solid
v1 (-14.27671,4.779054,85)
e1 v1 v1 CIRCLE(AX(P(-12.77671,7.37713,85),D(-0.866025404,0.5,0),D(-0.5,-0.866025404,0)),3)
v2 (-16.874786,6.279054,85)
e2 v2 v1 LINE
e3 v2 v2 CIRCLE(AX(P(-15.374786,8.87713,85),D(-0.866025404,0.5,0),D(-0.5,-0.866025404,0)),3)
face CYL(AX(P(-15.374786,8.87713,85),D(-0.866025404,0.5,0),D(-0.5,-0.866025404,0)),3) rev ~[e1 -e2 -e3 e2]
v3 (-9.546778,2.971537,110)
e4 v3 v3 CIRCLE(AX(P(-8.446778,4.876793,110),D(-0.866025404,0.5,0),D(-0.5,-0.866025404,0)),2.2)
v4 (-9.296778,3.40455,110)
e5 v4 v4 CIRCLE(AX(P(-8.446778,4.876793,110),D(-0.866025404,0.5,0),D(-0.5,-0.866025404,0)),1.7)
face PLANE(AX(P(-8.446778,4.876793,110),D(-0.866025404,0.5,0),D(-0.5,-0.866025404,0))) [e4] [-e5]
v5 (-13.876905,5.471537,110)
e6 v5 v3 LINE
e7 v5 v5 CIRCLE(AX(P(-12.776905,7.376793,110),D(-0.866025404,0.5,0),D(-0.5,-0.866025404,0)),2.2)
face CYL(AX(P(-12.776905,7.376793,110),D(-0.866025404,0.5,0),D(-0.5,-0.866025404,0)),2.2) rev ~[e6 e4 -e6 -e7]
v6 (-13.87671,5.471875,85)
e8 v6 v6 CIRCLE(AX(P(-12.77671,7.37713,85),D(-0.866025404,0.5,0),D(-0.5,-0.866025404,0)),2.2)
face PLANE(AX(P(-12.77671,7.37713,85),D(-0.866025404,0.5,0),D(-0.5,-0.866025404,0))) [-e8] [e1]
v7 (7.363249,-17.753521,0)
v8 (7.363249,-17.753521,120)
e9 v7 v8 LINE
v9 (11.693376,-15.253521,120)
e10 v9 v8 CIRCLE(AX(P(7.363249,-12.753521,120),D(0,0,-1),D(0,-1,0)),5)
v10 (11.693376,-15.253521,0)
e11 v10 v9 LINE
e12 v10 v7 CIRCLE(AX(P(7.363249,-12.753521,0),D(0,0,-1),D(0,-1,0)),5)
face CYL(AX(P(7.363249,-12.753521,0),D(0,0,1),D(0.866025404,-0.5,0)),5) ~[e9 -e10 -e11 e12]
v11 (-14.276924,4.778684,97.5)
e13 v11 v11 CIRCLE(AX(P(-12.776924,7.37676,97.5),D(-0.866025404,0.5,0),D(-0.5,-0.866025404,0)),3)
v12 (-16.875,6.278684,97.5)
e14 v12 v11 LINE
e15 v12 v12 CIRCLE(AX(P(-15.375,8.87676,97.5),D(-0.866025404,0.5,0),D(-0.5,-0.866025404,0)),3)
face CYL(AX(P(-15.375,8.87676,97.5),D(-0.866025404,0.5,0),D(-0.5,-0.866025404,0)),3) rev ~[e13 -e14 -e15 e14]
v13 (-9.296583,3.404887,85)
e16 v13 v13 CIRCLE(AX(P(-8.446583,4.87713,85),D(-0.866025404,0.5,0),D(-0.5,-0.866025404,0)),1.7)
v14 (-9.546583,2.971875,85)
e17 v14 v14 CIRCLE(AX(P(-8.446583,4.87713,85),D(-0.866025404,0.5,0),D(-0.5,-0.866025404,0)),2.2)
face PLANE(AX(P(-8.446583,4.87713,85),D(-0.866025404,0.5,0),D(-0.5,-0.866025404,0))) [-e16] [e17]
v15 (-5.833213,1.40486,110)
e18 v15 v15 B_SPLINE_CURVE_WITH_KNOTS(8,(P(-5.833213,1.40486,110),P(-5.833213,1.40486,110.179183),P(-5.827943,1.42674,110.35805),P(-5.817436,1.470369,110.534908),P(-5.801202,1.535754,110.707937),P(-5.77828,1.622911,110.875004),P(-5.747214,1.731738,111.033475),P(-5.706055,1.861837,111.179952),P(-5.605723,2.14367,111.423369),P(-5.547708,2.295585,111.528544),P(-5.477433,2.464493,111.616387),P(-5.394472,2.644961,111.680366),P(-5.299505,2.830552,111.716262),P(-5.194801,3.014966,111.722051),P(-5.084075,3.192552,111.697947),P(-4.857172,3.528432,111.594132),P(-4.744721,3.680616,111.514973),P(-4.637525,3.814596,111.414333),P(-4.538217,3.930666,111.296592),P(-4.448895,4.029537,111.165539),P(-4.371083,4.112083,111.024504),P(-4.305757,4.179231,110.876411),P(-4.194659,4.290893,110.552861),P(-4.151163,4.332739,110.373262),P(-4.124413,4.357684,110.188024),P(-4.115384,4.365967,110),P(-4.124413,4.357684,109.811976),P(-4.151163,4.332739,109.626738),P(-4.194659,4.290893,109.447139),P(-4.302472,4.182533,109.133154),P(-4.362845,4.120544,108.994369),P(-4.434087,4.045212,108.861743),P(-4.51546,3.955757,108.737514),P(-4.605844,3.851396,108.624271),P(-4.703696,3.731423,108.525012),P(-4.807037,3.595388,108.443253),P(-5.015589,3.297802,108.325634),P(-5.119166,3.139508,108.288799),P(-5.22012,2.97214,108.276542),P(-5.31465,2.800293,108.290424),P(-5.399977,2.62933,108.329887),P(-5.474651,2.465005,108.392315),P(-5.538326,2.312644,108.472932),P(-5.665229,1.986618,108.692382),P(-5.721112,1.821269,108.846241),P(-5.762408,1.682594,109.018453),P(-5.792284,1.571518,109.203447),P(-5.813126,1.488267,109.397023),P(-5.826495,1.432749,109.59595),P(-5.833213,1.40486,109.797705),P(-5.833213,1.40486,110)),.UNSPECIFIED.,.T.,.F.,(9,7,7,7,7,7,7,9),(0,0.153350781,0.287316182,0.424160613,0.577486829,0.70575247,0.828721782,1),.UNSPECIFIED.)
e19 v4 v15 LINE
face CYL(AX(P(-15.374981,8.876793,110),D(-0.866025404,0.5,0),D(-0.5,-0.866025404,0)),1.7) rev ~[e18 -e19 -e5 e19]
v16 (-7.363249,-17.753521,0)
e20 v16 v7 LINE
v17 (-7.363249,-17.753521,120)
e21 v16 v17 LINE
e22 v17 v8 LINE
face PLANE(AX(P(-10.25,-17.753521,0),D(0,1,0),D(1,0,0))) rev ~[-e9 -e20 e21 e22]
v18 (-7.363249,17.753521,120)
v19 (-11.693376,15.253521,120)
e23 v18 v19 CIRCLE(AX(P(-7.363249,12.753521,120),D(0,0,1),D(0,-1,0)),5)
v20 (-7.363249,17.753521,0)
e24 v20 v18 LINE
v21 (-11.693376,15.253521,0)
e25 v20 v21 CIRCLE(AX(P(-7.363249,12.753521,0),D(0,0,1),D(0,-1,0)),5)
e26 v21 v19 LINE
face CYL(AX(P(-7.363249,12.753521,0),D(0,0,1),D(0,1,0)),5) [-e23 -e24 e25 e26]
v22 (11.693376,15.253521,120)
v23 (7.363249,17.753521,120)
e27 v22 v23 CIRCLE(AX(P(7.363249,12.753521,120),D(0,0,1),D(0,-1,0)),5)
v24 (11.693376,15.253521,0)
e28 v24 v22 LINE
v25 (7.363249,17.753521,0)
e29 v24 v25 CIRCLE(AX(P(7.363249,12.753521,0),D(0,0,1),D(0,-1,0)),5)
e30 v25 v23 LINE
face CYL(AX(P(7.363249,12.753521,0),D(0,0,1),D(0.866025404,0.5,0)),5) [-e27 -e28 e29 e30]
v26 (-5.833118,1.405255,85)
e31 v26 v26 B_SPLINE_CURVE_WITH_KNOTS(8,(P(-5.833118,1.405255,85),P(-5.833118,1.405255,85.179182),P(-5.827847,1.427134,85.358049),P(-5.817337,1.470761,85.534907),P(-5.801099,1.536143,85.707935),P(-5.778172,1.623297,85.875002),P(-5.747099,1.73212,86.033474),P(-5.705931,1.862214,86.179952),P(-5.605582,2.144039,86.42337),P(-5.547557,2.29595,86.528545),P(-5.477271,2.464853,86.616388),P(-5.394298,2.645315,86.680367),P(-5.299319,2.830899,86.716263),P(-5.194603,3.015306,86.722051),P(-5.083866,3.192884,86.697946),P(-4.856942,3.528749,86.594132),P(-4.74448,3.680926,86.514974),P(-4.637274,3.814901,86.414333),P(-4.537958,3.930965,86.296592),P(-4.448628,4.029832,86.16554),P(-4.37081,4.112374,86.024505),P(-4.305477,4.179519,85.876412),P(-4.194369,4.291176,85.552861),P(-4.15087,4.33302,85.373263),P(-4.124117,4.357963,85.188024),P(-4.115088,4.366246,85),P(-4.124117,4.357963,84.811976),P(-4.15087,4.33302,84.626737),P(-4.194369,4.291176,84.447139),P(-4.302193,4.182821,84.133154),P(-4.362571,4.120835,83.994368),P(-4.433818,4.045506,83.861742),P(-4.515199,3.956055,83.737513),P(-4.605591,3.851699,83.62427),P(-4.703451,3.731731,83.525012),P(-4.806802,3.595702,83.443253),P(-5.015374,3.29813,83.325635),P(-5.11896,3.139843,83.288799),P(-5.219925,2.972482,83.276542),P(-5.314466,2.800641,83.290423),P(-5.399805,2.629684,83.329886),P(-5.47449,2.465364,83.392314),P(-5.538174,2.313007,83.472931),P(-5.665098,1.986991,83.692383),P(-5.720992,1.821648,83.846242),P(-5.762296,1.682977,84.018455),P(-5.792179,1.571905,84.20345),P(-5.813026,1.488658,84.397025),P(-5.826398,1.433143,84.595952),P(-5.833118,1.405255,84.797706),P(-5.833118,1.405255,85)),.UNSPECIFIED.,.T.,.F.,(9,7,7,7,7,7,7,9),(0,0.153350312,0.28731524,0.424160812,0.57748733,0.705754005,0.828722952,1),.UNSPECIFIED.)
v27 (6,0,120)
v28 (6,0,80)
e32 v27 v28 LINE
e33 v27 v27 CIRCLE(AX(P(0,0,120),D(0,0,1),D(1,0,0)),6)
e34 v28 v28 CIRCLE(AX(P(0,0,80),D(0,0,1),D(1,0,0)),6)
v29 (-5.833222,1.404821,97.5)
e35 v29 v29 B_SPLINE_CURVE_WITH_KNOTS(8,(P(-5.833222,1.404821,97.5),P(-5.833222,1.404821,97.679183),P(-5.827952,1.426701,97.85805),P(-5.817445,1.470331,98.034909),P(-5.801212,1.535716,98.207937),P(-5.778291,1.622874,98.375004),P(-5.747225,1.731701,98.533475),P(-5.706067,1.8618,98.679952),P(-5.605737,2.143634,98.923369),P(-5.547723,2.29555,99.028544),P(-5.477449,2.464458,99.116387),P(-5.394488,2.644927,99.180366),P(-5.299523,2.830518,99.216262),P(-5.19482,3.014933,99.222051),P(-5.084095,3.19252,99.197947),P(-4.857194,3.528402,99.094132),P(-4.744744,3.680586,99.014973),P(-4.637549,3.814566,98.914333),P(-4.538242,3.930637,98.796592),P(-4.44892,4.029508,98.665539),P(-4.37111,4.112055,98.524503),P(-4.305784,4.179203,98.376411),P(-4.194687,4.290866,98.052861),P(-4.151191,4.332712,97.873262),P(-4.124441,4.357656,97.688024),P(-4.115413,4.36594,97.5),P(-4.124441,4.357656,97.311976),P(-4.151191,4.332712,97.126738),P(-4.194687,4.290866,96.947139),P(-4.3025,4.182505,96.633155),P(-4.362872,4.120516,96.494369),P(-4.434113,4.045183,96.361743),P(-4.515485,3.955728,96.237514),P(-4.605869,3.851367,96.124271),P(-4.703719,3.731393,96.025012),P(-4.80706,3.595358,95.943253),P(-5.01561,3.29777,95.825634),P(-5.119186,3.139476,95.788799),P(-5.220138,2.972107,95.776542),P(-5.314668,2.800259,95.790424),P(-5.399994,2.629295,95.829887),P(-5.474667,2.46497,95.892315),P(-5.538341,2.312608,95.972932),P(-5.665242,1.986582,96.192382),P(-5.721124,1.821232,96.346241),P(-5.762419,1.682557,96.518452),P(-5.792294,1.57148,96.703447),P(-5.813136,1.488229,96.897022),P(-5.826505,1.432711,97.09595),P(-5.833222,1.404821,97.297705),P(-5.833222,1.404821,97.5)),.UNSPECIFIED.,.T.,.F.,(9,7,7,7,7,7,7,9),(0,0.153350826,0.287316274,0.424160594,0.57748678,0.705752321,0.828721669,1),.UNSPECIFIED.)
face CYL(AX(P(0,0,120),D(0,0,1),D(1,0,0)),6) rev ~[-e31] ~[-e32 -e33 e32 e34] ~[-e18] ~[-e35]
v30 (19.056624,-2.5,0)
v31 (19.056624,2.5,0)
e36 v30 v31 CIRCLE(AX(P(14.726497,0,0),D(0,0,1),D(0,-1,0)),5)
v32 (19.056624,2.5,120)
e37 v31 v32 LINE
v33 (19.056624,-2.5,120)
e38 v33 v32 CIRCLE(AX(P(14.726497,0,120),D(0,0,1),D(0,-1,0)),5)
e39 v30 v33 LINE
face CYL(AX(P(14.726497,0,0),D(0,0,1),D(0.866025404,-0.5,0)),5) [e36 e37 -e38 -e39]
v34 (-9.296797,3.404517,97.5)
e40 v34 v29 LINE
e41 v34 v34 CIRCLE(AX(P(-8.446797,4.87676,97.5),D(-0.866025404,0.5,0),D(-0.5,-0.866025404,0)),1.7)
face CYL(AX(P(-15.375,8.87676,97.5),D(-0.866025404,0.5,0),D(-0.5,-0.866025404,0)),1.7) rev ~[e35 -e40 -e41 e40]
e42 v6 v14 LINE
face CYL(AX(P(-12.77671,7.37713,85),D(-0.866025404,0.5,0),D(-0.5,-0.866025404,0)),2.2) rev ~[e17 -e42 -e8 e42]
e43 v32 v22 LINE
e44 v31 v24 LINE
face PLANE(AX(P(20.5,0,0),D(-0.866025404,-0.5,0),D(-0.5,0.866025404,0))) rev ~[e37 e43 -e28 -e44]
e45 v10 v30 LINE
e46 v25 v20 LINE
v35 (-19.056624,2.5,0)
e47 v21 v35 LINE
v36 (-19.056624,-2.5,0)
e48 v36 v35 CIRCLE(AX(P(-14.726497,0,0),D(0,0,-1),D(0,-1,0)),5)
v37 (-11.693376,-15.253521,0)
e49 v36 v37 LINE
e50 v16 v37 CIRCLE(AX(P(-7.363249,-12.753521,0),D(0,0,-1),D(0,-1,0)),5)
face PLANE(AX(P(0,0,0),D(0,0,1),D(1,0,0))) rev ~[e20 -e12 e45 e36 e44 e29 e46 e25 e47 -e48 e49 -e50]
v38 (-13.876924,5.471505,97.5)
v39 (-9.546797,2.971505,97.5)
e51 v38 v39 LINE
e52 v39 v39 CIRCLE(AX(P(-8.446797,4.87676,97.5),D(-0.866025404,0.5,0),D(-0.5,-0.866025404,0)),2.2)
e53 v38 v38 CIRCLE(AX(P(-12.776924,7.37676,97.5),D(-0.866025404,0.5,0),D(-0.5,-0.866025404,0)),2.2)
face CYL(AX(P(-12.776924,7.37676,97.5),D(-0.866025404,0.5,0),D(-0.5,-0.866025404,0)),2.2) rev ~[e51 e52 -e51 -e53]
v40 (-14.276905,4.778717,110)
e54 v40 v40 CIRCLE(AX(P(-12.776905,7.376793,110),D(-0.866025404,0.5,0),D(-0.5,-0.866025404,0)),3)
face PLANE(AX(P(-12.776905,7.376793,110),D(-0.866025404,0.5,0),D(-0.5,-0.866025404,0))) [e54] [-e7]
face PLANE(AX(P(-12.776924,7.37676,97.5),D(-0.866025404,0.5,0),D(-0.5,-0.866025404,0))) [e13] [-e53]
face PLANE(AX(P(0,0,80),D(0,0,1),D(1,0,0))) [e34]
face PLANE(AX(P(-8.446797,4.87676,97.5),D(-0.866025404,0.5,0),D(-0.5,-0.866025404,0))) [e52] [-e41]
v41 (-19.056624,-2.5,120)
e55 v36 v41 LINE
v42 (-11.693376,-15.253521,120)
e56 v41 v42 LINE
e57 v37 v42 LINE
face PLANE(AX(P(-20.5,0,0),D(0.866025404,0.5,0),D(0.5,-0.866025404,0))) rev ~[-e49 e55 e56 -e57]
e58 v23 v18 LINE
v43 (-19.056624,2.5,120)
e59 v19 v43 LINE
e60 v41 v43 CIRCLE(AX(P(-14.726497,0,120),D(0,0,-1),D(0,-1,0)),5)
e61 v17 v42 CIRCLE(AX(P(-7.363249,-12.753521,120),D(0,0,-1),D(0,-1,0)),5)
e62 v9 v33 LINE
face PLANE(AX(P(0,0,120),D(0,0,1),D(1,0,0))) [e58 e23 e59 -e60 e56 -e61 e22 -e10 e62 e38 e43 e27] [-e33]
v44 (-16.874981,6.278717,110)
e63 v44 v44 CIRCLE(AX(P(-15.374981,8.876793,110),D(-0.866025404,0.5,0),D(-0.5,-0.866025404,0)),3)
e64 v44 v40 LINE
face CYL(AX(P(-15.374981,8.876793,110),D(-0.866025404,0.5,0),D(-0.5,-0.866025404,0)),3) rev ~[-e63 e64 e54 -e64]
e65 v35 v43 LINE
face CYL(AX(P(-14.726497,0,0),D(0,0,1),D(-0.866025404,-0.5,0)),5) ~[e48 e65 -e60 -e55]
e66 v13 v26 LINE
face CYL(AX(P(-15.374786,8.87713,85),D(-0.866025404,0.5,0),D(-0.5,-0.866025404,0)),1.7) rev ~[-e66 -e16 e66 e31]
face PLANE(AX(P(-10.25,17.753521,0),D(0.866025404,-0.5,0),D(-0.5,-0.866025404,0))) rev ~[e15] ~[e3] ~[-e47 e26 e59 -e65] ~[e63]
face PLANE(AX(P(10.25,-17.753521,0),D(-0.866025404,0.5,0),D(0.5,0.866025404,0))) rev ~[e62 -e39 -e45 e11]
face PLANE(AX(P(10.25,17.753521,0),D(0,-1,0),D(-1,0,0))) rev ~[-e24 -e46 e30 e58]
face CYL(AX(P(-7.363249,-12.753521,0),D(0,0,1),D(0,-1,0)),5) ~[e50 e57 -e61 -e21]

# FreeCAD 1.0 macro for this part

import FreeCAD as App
import Part
import Sketcher
from FreeCAD import Vector
Q = App.Units.Quantity


def edges_at(feature, points):
    """Names of the edges that pass closest to the given points."""
    edges = feature.Shape.Edges
    near = lambda p: min(range(len(edges)), key=lambda i: edges[i].distToShape(Part.Vertex(*p))[0])
    return sorted({f"Edge{near(p) + 1}" for p in points})

doc = App.newDocument("Part")
body = doc.addObject("PartDesign::Body", "Body")

# Sketch on XY plane
sketch1 = doc.addObject("Sketcher::SketchObject", "Sketch")
body.addObject(sketch1)
sketch1.AttachmentSupport = (doc.XY_Plane, [""])
sketch1.MapMode = "FlatFace"
sketch1.addGeometry([
    Part.LineSegment(Vector(10, -18, 0), Vector(20, 0, 0)),  # 0
    Part.LineSegment(Vector(20, 0, 0), Vector(10, 18, 0)),  # 1
    Part.LineSegment(Vector(10, 18, 0), Vector(-10, 18, 0)),  # 2
    Part.LineSegment(Vector(-10, 18, 0), Vector(-20, 0, 0)),  # 3
    Part.LineSegment(Vector(-20, 0, 0), Vector(-10, -18, 0)),  # 4
    Part.LineSegment(Vector(-10, -18, 0), Vector(10, -18, 0)),  # 5
], False)
sketch1.addConstraint([
    Sketcher.Constraint("Coincident", 0, 2, 1, 1),
    Sketcher.Constraint("Coincident", 1, 2, 2, 1),
    Sketcher.Constraint("Coincident", 2, 2, 3, 1),
    Sketcher.Constraint("Coincident", 3, 2, 4, 1),
    Sketcher.Constraint("Coincident", 4, 2, 5, 1),
    Sketcher.Constraint("Coincident", 5, 2, 0, 1),
    Sketcher.Constraint("Horizontal", 2),
    Sketcher.Constraint("Horizontal", 5),
    Sketcher.Constraint("Symmetric", 0, 2, 3, 2, -1, 1),
    Sketcher.Constraint("Symmetric", 1, 2, 4, 2, -1, 1),
    Sketcher.Constraint("PointOnObject", 0, 2, -1),
    Sketcher.Constraint("Parallel", 0, 3),
    Sketcher.Constraint("Vertical", 2, 2, 4, 2),
    Sketcher.Constraint("Angle", 0, Q("60 deg")),
    Sketcher.Constraint("DistanceX", 2, 2, 2, 1, Q("20.5 mm")),
    Sketcher.Constraint("DistanceX", 3, 2, 0, 2, Q("41 mm")),
])
pad1 = doc.addObject("PartDesign::Pad", "Pad")
body.addObject(pad1)
pad1.Profile = sketch1
pad1.Length = 120

# Sketch on XY plane
sketch2 = doc.addObject("Sketcher::SketchObject", "Sketch001")
body.addObject(sketch2)
sketch2.AttachmentSupport = (doc.XY_Plane, [""])
sketch2.MapMode = "FlatFace"
sketch2.AttachmentOffset = App.Placement(Vector(0, 0, 120), App.Rotation())
sketch2.addGeometry(Part.Circle(Vector(0, 0, 0), Vector(0, 0, 1), 6), False)
sketch2.addConstraint([
    Sketcher.Constraint("Coincident", 0, 3, -1, 1),
    Sketcher.Constraint("Diameter", 0, Q("12 mm")),
])
pocket1 = doc.addObject("PartDesign::Pocket", "Pocket")
body.addObject(pocket1)
pocket1.Profile = sketch2
pocket1.Length = 40

# Sketch on an angled plane
sketch3 = doc.addObject("Sketcher::SketchObject", "Sketch002")
body.addObject(sketch3)
sketch3.Placement = App.Placement(Vector(-15.375, 8.87676, 0), App.Rotation(Vector(-0.5, -0.866025404, 0), Vector(0, 0, 1), Vector(-0.866025404, 0.5, 0), "ZXY"))
sketch3.addGeometry([
    Part.Circle(Vector(0, 110, 0), Vector(0, 0, 1), 1.7),
    Part.Circle(Vector(0, 97.5, 0), Vector(0, 0, 1), 1.7),
    Part.Circle(Vector(0, 85, 0), Vector(0, 0, 1), 1.7),
], False)
sketch3.addConstraint([
    Sketcher.Constraint("Equal", 0, 1),
    Sketcher.Constraint("Equal", 1, 2),
    Sketcher.Constraint("PointOnObject", 1, 3, -2),
    Sketcher.Constraint("Diameter", 0, Q("3.4 mm")),
    Sketcher.Constraint("DistanceY", -1, 1, 0, 3, Q("110 mm")),
    Sketcher.Constraint("DistanceY", -1, 1, 2, 3, Q("85 mm")),
    Sketcher.Constraint("DistanceY", -1, 1, 1, 3, Q("97.5 mm")),
    Sketcher.Constraint("DistanceX", 2, 3, 0, 3, Q("0.00039 mm")),
    Sketcher.Constraint("DistanceX", 2, 3, -1, 1, Q("0.000427 mm")),
])
pocket2 = doc.addObject("PartDesign::Pocket", "Pocket001")
body.addObject(pocket2)
pocket2.Profile = sketch3
pocket2.Length = 14

# Sketch on an angled plane
sketch4 = doc.addObject("Sketcher::SketchObject", "Sketch003")
body.addObject(sketch4)
sketch4.Placement = App.Placement(Vector(-15.375, 8.87676, 0), App.Rotation(Vector(-0.5, -0.866025404, 0), Vector(0, 0, 1), Vector(-0.866025404, 0.5, 0), "ZXY"))
sketch4.addGeometry([
    Part.Circle(Vector(0, 85, 0), Vector(0, 0, 1), 3),
    Part.Circle(Vector(0, 97.5, 0), Vector(0, 0, 1), 3),
    Part.Circle(Vector(0, 110, 0), Vector(0, 0, 1), 3),
], False)
sketch4.addConstraint([
    Sketcher.Constraint("Equal", 0, 1),
    Sketcher.Constraint("Equal", 1, 2),
    Sketcher.Constraint("PointOnObject", 1, 3, -2),
    Sketcher.Constraint("Diameter", 0, Q("6 mm")),
    Sketcher.Constraint("DistanceY", -1, 1, 0, 3, Q("85 mm")),
    Sketcher.Constraint("DistanceY", -1, 1, 2, 3, Q("110 mm")),
    Sketcher.Constraint("DistanceY", -1, 1, 1, 3, Q("97.5 mm")),
    Sketcher.Constraint("DistanceX", 0, 3, 2, 3, Q("0.00039 mm")),
    Sketcher.Constraint("DistanceX", 0, 3, -1, 1, Q("0.000427 mm")),
])
pocket3 = doc.addObject("PartDesign::Pocket", "Pocket002")
body.addObject(pocket3)
pocket3.Profile = sketch4
pocket3.Length = 3

# Sketch on an angled plane
sketch5 = doc.addObject("Sketcher::SketchObject", "Sketch004")
body.addObject(sketch5)
sketch5.Placement = App.Placement(Vector(-12.776924, 7.37676, 0), App.Rotation(Vector(-0.5, -0.866025404, 0), Vector(0, 0, 1), Vector(-0.866025404, 0.5, 0), "ZXY"))
sketch5.addGeometry([
    Part.Circle(Vector(0, 85, 0), Vector(0, 0, 1), 2.2),
    Part.Circle(Vector(0, 110, 0), Vector(0, 0, 1), 2.2),
    Part.Circle(Vector(0, 97.5, 0), Vector(0, 0, 1), 2.2),
], False)
sketch5.addConstraint([
    Sketcher.Constraint("Equal", 0, 1),
    Sketcher.Constraint("Equal", 1, 2),
    Sketcher.Constraint("PointOnObject", 2, 3, -2),
    Sketcher.Constraint("Diameter", 0, Q("4.4 mm")),
    Sketcher.Constraint("DistanceY", -1, 1, 0, 3, Q("85 mm")),
    Sketcher.Constraint("DistanceY", -1, 1, 1, 3, Q("110 mm")),
    Sketcher.Constraint("DistanceY", -1, 1, 2, 3, Q("97.5 mm")),
    Sketcher.Constraint("DistanceX", 0, 3, 1, 3, Q("0.00039 mm")),
    Sketcher.Constraint("DistanceX", 0, 3, -1, 1, Q("0.000427 mm")),
])
pocket4 = doc.addObject("PartDesign::Pocket", "Pocket003")
body.addObject(pocket4)
pocket4.Profile = sketch5
pocket4.Length = 5
doc.recompute()

fillet = doc.addObject("PartDesign::Fillet", "Fillet")
body.addObject(fillet)
fillet.Base = (pocket4, edges_at(pocket4, [
    (20.5, 0, 60),
    (-20.5, 0, 60),
    (10.25, -17.754, 60),
    (-10.25, -17.754, 60),
    (-10.25, 17.754, 60),
    (10.25, 17.754, 60),
]))
fillet.Radius = 5

doc.recompute()
